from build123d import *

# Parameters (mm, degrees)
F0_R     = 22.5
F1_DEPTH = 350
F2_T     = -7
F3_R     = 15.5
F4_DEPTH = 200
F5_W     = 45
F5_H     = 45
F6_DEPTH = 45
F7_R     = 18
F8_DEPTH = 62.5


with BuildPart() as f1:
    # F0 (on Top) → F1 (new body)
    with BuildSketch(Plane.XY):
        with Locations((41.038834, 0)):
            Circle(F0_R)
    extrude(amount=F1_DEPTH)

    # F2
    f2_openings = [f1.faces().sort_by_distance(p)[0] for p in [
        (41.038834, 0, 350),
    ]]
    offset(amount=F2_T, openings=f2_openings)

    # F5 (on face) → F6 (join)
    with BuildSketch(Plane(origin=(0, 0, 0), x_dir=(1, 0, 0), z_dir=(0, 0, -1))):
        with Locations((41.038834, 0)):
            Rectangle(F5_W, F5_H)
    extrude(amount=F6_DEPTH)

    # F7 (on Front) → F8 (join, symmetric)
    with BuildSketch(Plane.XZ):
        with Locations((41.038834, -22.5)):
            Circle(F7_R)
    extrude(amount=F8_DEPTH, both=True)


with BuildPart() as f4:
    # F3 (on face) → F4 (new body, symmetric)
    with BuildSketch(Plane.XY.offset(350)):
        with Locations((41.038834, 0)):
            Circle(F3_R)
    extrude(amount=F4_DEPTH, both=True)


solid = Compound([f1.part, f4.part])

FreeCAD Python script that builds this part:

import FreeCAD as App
import Part
import Sketcher
from FreeCAD import Vector


def faces_at(feature, points):
    """Names of the faces that lie closest to the given points."""
    faces = feature.Shape.Faces
    near = lambda p: min(range(len(faces)), key=lambda i: faces[i].distToShape(Part.Vertex(*p))[0])
    return sorted({f"Face{near(p) + 1}" for p in points})

doc = App.newDocument("Part")
params = doc.addObject("Spreadsheet::Sheet", "Params")
for row, (alias, value) in enumerate([
    ("sketch1_diameter", "45 mm"),
    ("pad1_length", "350 mm"),
    ("thickness_wall", "7 mm"),
    ("sketch2_width", "45 mm"),
    ("pad2_length", "45 mm"),
    ("sketch3_diameter", "36 mm"),
    ("pad3_length", "125 mm"),
    ("sketch4_diameter", "31 mm"),
    ("pad4_length", "400 mm"),
], start=1):
    params.set(f"A{row}", alias)
    params.set(f"B{row}", "=" + value)
    params.setAlias(f"B{row}", alias)

body = doc.addObject("PartDesign::Body", "Body")

# Sketch on XY plane
sketch1 = body.newObject("Sketcher::SketchObject", "Sketch")
sketch1.AttachmentSupport = (doc.getObject("XY_Plane"), [""])
sketch1.MapMode = "FlatFace"
sketch1.addGeometry(Part.Circle(Vector(41, 0, 0), Vector(0, 0, 1), 22), False)
sketch1.addConstraint([
    Sketcher.Constraint("PointOnObject", 0, 3, -1),
    Sketcher.Constraint("Diameter", 0, 45.0),
    Sketcher.Constraint("DistanceX", -1, 1, 0, 3, 41.038834),
])
sketch1.setExpression("Constraints[1]", "Params.sketch1_diameter")
pad1 = body.newObject("PartDesign::Pad", "Pad")
pad1.Profile = sketch1
pad1.setExpression("Length", "Params.pad1_length")
doc.recompute()

thickness = body.newObject("PartDesign::Thickness", "Thickness")
thickness.Base = (pad1, faces_at(pad1, [(41.039, 0, 350)]))
thickness.setExpression("Value", "Params.thickness_wall")
thickness.Reversed = True
thickness.Join = "Arc"

# Sketch on XY plane
sketch2 = body.newObject("Sketcher::SketchObject", "Sketch001")
sketch2.AttachmentSupport = (doc.getObject("XY_Plane"), [""])
sketch2.MapMode = "FlatFace"
sketch2.addGeometry([
    Part.LineSegment(Vector(19, -22, 0), Vector(19, 22, 0)),
    Part.LineSegment(Vector(19, 22, 0), Vector(64, 22, 0)),
    Part.LineSegment(Vector(64, 22, 0), Vector(64, -22, 0)),
    Part.LineSegment(Vector(64, -22, 0), Vector(19, -22, 0)),
], False)
sketch2.addConstraint([
    Sketcher.Constraint("Coincident", 0, 2, 1, 1),
    Sketcher.Constraint("Coincident", 1, 2, 2, 1),
    Sketcher.Constraint("Coincident", 2, 2, 3, 1),
    Sketcher.Constraint("Coincident", 3, 2, 0, 1),
    Sketcher.Constraint("Vertical", 0),
    Sketcher.Constraint("Horizontal", 1),
    Sketcher.Constraint("Vertical", 2),
    Sketcher.Constraint("Horizontal", 3),
    Sketcher.Constraint("Equal", 3, 0),
    Sketcher.Constraint("DistanceX", 1, 1, 1, 2, 45.0),
    Sketcher.Constraint("DistanceY", -1, 1, 0, 2, 22.5),
    Sketcher.Constraint("DistanceX", -1, 1, 0, 2, 18.538834),
])
sketch2.setExpression("Constraints[9]", "Params.sketch2_width")
pad2 = body.newObject("PartDesign::Pad", "Pad001")
pad2.Profile = sketch2
pad2.setExpression("Length", "Params.pad2_length")
pad2.Reversed = True

# Sketch on XZ plane
sketch3 = body.newObject("Sketcher::SketchObject", "Sketch002")
sketch3.AttachmentSupport = (doc.getObject("XZ_Plane"), [""])
sketch3.MapMode = "FlatFace"
sketch3.addGeometry(Part.Circle(Vector(41, -22, 0), Vector(0, 0, 1), 18), False)
sketch3.addConstraint([
    Sketcher.Constraint("Diameter", 0, 36.0),
    Sketcher.Constraint("DistanceY", 0, 3, -1, 1, 22.5),
    Sketcher.Constraint("DistanceX", -1, 1, 0, 3, 41.038834),
])
sketch3.setExpression("Constraints[0]", "Params.sketch3_diameter")
pad3 = body.newObject("PartDesign::Pad", "Pad002")
pad3.Profile = sketch3
pad3.setExpression("Length", "Params.pad3_length")
pad3.Midplane = True
body2 = doc.addObject("PartDesign::Body", "Body001")

# Sketch on XY plane
sketch4 = body2.newObject("Sketcher::SketchObject", "Sketch003")
sketch4.AttachmentSupport = (doc.getObject("XY_Plane001"), [""])
sketch4.MapMode = "FlatFace"
sketch4.AttachmentOffset = App.Placement(Vector(0, 0, 350), App.Rotation())
sketch4.addGeometry(Part.Circle(Vector(41, 0, 0), Vector(0, 0, 1), 16), False)
sketch4.addConstraint([
    Sketcher.Constraint("PointOnObject", 0, 3, -1),
    Sketcher.Constraint("Diameter", 0, 31.0),
    Sketcher.Constraint("DistanceX", -1, 1, 0, 3, 41.038834),
])
sketch4.setExpression("Constraints[1]", "Params.sketch4_diameter")
pad4 = body2.newObject("PartDesign::Pad", "Pad003")
pad4.Profile = sketch4
pad4.setExpression("Length", "Params.pad4_length")
pad4.Midplane = True

doc.recompute()
